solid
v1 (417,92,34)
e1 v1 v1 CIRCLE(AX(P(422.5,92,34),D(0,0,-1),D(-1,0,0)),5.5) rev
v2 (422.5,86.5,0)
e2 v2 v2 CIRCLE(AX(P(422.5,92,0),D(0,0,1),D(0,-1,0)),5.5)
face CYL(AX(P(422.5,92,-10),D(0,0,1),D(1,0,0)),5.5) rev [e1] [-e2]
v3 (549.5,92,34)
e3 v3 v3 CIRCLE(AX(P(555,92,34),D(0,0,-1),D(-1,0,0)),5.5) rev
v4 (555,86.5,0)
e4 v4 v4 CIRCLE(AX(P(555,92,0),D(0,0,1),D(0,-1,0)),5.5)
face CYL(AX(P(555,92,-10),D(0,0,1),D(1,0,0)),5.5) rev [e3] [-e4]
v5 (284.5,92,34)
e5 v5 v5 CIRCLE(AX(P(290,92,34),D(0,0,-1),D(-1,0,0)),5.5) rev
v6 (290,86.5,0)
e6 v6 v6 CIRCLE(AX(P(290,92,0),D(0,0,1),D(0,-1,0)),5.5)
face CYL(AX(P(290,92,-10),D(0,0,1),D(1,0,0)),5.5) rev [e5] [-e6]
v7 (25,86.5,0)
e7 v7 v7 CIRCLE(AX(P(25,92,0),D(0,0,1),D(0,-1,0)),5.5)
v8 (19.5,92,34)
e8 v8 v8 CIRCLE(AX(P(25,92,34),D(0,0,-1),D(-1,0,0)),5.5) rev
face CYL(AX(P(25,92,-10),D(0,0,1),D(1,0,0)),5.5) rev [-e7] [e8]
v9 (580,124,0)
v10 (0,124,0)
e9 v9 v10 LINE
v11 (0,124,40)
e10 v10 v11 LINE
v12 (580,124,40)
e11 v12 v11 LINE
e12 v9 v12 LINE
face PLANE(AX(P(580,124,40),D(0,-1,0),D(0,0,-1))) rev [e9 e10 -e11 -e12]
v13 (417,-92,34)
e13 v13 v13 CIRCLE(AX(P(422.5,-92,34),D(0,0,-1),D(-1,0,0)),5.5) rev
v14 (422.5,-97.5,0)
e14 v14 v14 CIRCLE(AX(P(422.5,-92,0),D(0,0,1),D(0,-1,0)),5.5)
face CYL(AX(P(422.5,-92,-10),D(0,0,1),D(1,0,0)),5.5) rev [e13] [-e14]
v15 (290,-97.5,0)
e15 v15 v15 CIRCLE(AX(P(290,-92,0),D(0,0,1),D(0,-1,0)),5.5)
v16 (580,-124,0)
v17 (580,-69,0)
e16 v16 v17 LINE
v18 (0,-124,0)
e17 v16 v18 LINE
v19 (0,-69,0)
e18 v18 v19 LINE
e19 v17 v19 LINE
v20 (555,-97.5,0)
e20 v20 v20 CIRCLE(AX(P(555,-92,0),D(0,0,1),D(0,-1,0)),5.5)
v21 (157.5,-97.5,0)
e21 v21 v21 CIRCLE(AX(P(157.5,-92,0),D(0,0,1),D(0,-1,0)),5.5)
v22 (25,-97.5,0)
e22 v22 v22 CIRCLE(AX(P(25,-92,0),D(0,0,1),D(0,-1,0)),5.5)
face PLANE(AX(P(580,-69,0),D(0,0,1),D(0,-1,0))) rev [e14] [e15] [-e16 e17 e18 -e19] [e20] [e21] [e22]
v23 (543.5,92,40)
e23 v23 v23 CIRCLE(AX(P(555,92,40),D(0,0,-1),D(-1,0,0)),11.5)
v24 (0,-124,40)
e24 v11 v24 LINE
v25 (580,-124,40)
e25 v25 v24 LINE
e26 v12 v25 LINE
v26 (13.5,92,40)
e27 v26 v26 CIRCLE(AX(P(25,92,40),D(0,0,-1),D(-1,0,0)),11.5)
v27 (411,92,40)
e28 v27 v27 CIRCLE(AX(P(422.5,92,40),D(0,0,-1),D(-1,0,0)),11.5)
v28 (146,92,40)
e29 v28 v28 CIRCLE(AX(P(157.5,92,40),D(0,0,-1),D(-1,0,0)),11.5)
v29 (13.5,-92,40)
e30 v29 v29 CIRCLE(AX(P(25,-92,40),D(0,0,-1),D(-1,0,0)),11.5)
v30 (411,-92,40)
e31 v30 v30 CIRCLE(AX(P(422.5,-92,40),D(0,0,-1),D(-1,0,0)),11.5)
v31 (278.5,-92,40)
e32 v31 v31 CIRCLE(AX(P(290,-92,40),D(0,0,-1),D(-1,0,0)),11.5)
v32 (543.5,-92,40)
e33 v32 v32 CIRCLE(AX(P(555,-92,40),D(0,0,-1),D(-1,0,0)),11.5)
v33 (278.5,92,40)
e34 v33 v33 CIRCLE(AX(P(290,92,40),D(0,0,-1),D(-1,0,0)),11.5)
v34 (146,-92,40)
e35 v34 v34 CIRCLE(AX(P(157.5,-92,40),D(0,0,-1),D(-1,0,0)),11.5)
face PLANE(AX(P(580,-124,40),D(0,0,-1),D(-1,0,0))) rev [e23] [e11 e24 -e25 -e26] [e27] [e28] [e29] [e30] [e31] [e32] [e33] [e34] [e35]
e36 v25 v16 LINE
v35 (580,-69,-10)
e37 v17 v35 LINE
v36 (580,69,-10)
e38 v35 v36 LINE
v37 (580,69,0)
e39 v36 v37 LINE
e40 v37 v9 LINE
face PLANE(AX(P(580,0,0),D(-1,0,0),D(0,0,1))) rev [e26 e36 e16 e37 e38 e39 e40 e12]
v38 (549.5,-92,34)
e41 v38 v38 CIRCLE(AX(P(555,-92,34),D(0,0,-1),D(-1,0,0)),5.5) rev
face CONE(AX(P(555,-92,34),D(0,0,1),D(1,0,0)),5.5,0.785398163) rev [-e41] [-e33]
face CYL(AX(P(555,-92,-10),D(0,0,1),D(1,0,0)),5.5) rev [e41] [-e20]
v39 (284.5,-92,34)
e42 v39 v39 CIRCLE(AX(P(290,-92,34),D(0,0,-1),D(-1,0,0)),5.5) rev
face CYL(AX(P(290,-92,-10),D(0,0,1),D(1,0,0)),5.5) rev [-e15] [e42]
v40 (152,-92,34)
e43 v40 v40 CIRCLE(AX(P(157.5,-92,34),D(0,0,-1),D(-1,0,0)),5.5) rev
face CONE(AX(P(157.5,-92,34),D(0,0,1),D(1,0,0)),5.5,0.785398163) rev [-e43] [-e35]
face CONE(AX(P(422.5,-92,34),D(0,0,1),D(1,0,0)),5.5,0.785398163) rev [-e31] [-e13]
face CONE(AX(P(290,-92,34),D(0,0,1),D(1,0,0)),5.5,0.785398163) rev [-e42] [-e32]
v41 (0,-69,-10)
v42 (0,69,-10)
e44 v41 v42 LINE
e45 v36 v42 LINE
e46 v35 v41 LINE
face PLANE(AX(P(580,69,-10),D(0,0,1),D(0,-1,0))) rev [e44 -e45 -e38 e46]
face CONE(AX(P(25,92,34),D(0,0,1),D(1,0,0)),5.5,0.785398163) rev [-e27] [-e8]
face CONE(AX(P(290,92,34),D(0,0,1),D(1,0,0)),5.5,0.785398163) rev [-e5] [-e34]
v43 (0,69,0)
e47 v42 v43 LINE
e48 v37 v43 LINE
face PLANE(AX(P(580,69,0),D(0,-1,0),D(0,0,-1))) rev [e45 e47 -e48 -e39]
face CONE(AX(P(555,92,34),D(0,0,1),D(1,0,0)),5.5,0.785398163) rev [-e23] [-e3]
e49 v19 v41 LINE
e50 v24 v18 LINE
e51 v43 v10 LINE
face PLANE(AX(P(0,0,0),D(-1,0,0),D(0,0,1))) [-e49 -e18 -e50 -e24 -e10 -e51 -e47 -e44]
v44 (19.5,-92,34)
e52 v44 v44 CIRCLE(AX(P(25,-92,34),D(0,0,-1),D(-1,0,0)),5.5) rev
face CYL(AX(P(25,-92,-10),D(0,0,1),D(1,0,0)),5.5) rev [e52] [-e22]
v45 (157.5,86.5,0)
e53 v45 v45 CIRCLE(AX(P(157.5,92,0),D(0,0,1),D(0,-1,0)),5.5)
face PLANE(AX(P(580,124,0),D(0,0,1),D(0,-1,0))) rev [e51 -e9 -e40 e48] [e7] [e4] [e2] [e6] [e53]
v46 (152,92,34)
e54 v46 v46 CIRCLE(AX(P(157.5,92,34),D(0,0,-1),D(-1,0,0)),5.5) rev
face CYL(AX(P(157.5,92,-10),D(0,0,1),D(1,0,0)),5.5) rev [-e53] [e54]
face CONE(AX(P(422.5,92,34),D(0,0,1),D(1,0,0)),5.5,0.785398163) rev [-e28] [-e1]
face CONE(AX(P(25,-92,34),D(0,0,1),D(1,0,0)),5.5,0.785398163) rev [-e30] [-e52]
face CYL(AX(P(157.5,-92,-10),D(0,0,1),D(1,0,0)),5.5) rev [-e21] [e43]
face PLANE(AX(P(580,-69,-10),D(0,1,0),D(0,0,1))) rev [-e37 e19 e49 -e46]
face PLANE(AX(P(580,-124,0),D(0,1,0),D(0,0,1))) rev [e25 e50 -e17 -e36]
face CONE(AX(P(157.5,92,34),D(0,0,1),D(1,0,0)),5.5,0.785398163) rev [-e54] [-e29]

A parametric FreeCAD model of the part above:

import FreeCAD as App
import Part
import Sketcher
from FreeCAD import Vector


def edges_at(feature, points):
    """Names of the edges that pass closest to the given points."""
    edges = feature.Shape.Edges
    near = lambda p: min(range(len(edges)), key=lambda i: edges[i].distToShape(Part.Vertex(*p))[0])
    return sorted({f"Edge{near(p) + 1}" for p in points})

doc = App.newDocument("Part")
params = doc.addObject("Spreadsheet::Sheet", "Params")
for row, (alias, value) in enumerate([
    ("sketch1_width", "55 mm"),
    ("sketch1_width2", "138 mm"),
    ("sketch1_height", "40 mm"),
    ("sketch1_height2", "10 mm"),
    ("pad1_length", "580 mm"),
    ("sketch2_diameter", "11 mm"),
    ("chamfer_size", "6 mm"),
], start=1):
    params.set(f"A{row}", alias)
    params.set(f"B{row}", "=" + value)
    params.setAlias(f"B{row}", alias)

body = doc.addObject("PartDesign::Body", "Body")

# Sketch on YZ plane
sketch1 = body.newObject("Sketcher::SketchObject", "Sketch")
sketch1.AttachmentSupport = (doc.getObject("YZ_Plane"), [""])
sketch1.MapMode = "FlatFace"
sketch1.addGeometry(Part.LineSegment(Vector(-124, 40, 0), Vector(-124, 0, 0)), False)
sketch1.addGeometry(Part.LineSegment(Vector(-124, 0, 0), Vector(-69, 0, 0)), False)
sketch1.addGeometry(Part.LineSegment(Vector(-69, 0, 0), Vector(-69, -10, 0)), False)
sketch1.addGeometry(Part.LineSegment(Vector(-69, -10, 0), Vector(69, -10, 0)), False)
sketch1.addGeometry(Part.LineSegment(Vector(69, -10, 0), Vector(69, 0, 0)), False)
sketch1.addGeometry(Part.LineSegment(Vector(69, 0, 0), Vector(124, 0, 0)), False)
sketch1.addGeometry(Part.LineSegment(Vector(124, 0, 0), Vector(124, 40, 0)), False)
sketch1.addGeometry(Part.LineSegment(Vector(124, 40, 0), Vector(-124, 40, 0)), False)
sketch1.addConstraint(Sketcher.Constraint("Coincident", 0, 2, 1, 1))
sketch1.addConstraint(Sketcher.Constraint("Coincident", 1, 2, 2, 1))
sketch1.addConstraint(Sketcher.Constraint("Coincident", 2, 2, 3, 1))
sketch1.addConstraint(Sketcher.Constraint("Coincident", 3, 2, 4, 1))
sketch1.addConstraint(Sketcher.Constraint("Coincident", 4, 2, 5, 1))
sketch1.addConstraint(Sketcher.Constraint("Coincident", 5, 2, 6, 1))
sketch1.addConstraint(Sketcher.Constraint("Coincident", 6, 2, 7, 1))
sketch1.addConstraint(Sketcher.Constraint("Coincident", 7, 2, 0, 1))
sketch1.addConstraint(Sketcher.Constraint("Vertical", 0))
sketch1.addConstraint(Sketcher.Constraint("Horizontal", 1))
sketch1.addConstraint(Sketcher.Constraint("Vertical", 2))
sketch1.addConstraint(Sketcher.Constraint("Horizontal", 3))
sketch1.addConstraint(Sketcher.Constraint("Vertical", 4))
sketch1.addConstraint(Sketcher.Constraint("Horizontal", 5))
sketch1.addConstraint(Sketcher.Constraint("Vertical", 6))
sketch1.addConstraint(Sketcher.Constraint("Horizontal", 7))
sketch1.addConstraint(Sketcher.Constraint("Symmetric", 1, 2, 4, 2, -1, 1))
sketch1.addConstraint(Sketcher.Constraint("Symmetric", 0, 2, 5, 2, -2))
sketch1.addConstraint(Sketcher.Constraint("DistanceX", 1, 1, 1, 2, 55.0))
sketch1.addConstraint(Sketcher.Constraint("DistanceX", 3, 1, 3, 2, 138.0))
sketch1.addConstraint(Sketcher.Constraint("DistanceY", 0, 2, 0, 1, 40.0))
sketch1.addConstraint(Sketcher.Constraint("DistanceY", 2, 2, 2, 1, 10.0))
sketch1.setExpression("Constraints[18]", "Params.sketch1_width")
sketch1.setExpression("Constraints[19]", "Params.sketch1_width2")
sketch1.setExpression("Constraints[20]", "Params.sketch1_height")
sketch1.setExpression("Constraints[21]", "Params.sketch1_height2")
pad1 = body.newObject("PartDesign::Pad", "Pad")
pad1.Profile = sketch1
pad1.setExpression("Length", "Params.pad1_length")

# Sketch on XY plane
sketch2 = body.newObject("Sketcher::SketchObject", "Sketch001")
sketch2.AttachmentSupport = (doc.getObject("XY_Plane"), [""])
sketch2.MapMode = "FlatFace"
sketch2.AttachmentOffset = App.Placement(Vector(0, 0, 40), App.Rotation())
sketch2.addGeometry(Part.Circle(Vector(25, 92, 0), Vector(0, 0, 1), 6), False)
sketch2.addGeometry(Part.Circle(Vector(158, 92, 0), Vector(0, 0, 1), 6), False)
sketch2.addGeometry(Part.Circle(Vector(422, 92, 0), Vector(0, 0, 1), 6), False)
sketch2.addGeometry(Part.Circle(Vector(555, 92, 0), Vector(0, 0, 1), 6), False)
sketch2.addGeometry(Part.Circle(Vector(290, 92, 0), Vector(0, 0, 1), 6), False)
sketch2.addGeometry(Part.Circle(Vector(555, -92, 0), Vector(0, 0, 1), 6), False)
sketch2.addGeometry(Part.Circle(Vector(422, -92, 0), Vector(0, 0, 1), 6), False)
sketch2.addGeometry(Part.Circle(Vector(290, -92, 0), Vector(0, 0, 1), 6), False)
sketch2.addGeometry(Part.Circle(Vector(158, -92, 0), Vector(0, 0, 1), 6), False)
sketch2.addGeometry(Part.Circle(Vector(25, -92, 0), Vector(0, 0, 1), 6), False)
sketch2.addConstraint(Sketcher.Constraint("Equal", 0, 1))
sketch2.addConstraint(Sketcher.Constraint("Equal", 1, 2))
sketch2.addConstraint(Sketcher.Constraint("Equal", 2, 3))
sketch2.addConstraint(Sketcher.Constraint("Equal", 3, 4))
sketch2.addConstraint(Sketcher.Constraint("Equal", 4, 5))
sketch2.addConstraint(Sketcher.Constraint("Equal", 5, 6))
sketch2.addConstraint(Sketcher.Constraint("Equal", 6, 7))
sketch2.addConstraint(Sketcher.Constraint("Equal", 7, 8))
sketch2.addConstraint(Sketcher.Constraint("Equal", 8, 9))
sketch2.addConstraint(Sketcher.Constraint("Symmetric", 3, 3, 5, 3, -1))
sketch2.addConstraint(Sketcher.Constraint("Symmetric", 2, 3, 6, 3, -1))
sketch2.addConstraint(Sketcher.Constraint("Symmetric", 4, 3, 7, 3, -1))
sketch2.addConstraint(Sketcher.Constraint("Symmetric", 1, 3, 8, 3, -1))
sketch2.addConstraint(Sketcher.Constraint("Symmetric", 0, 3, 9, 3, -1))
sketch2.addConstraint(Sketcher.Constraint("Horizontal", 0, 3, 1, 3))
sketch2.addConstraint(Sketcher.Constraint("Horizontal", 1, 3, 2, 3))
sketch2.addConstraint(Sketcher.Constraint("Horizontal", 2, 3, 3, 3))
sketch2.addConstraint(Sketcher.Constraint("Horizontal", 3, 3, 4, 3))
sketch2.addConstraint(Sketcher.Constraint("Diameter", 0, 11.0))
sketch2.addConstraint(Sketcher.Constraint("DistanceX", -1, 1, 0, 3, 25.0))
sketch2.addConstraint(Sketcher.Constraint("DistanceY", -1, 1, 0, 3, 92.0))
sketch2.addConstraint(Sketcher.Constraint("DistanceX", -1, 1, 3, 3, 555.0))
sketch2.addConstraint(Sketcher.Constraint("DistanceX", -1, 1, 4, 3, 290.0))
sketch2.addConstraint(Sketcher.Constraint("DistanceX", 1, 3, 2, 3, 265.0))
sketch2.addConstraint(Sketcher.Constraint("DistanceX", -1, 1, 1, 3, 157.5))
sketch2.setExpression("Constraints[18]", "Params.sketch2_diameter")
pocket1 = body.newObject("PartDesign::Pocket", "Pocket")
pocket1.Profile = sketch2
pocket1.Type = "ThroughAll"
doc.recompute()

chamfer = body.newObject("PartDesign::Chamfer", "Chamfer")
chamfer.Base = (pocket1, edges_at(pocket1, [
    (25, -86.5, 40),
    (157.5, -86.5, 40),
    (290, -86.5, 40),
    (417, -92, 40),
    (549.5, -92, 40),
    (152, 92, 40),
    (422.5, 97.5, 40),
    (555, 97.5, 40),
    (284.5, 92, 40),
    (19.5, 92, 40),
]))
chamfer.setExpression("Size", "Params.chamfer_size")

doc.recompute()
